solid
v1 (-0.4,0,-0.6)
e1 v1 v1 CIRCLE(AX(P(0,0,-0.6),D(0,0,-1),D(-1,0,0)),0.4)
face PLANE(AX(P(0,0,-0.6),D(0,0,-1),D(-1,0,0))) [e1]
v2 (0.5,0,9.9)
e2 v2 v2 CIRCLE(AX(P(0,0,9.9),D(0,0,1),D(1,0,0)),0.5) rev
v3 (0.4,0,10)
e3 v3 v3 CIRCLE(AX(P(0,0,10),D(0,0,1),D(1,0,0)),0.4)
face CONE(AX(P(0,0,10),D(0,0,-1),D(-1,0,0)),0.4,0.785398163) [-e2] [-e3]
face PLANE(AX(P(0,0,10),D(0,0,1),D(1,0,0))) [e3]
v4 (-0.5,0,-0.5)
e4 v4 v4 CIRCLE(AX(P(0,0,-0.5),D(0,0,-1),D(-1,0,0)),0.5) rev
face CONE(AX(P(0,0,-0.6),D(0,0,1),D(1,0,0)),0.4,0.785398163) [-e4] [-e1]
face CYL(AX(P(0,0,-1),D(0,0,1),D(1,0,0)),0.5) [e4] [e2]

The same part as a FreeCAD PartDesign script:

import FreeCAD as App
import Part
import Sketcher


def edges_at(feature, points):
    """Names of the edges that pass closest to the given points."""
    edges = feature.Shape.Edges
    near = lambda p: min(range(len(edges)), key=lambda i: edges[i].distToShape(Part.Vertex(*p))[0])
    return sorted({f"Edge{near(p) + 1}" for p in points})

doc = App.newDocument("Part")
params = doc.addObject("Spreadsheet::Sheet", "Params")
for row, (alias, value) in enumerate([
    ("sketch1_diameter", "1 mm"),
    ("pad1_length", "10 mm"),
    ("pad1_length2", "1 mm"),
    ("chamfer_size", "0.1 mm"),
    ("sketch2_diameter", "1 mm"),
    ("pocket1_length", "0.4 mm"),
    ("chamfer2_size", "0.1 mm"),
], start=1):
    params.set(f"A{row}", alias)
    params.set(f"B{row}", "=" + value)
    params.setAlias(f"B{row}", alias)

body = doc.addObject("PartDesign::Body", "Body")

# Sketch on XY plane
sketch1 = doc.addObject("Sketcher::SketchObject", "Sketch")
body.addObject(sketch1)
sketch1.AttachmentSupport = (doc.XY_Plane, [""])
sketch1.MapMode = "FlatFace"
sketch1.addGeometry(Part.Circle(App.Vector(0, 0, 0), App.Vector(0, 0, 1), 0.5), False)
sketch1.addConstraint([
    Sketcher.Constraint("Coincident", 0, 3, -1, 1),
    Sketcher.Constraint("Diameter", 0, 1.0),
])
sketch1.setExpression("Constraints[1]", "Params.sketch1_diameter")
pad1 = doc.addObject("PartDesign::Pad", "Pad")
body.addObject(pad1)
pad1.Profile = sketch1
pad1.Type = "TwoLengths"
pad1.setExpression("Length", "Params.pad1_length")
pad1.setExpression("Length2", "Params.pad1_length2")
doc.recompute()

chamfer = doc.addObject("PartDesign::Chamfer", "Chamfer")
body.addObject(chamfer)
chamfer.Base = (pad1, edges_at(pad1, [(-0.5, 0, -1), (-0.5, 0, 10)]))
chamfer.setExpression("Size", "Params.chamfer_size")

# Sketch on XY plane
sketch2 = doc.addObject("Sketcher::SketchObject", "Sketch001")
body.addObject(sketch2)
sketch2.AttachmentSupport = (doc.XY_Plane, [""])
sketch2.MapMode = "FlatFace"
sketch2.AttachmentOffset = App.Placement(App.Vector(0, 0, -1), App.Rotation())
sketch2.addGeometry(Part.Circle(App.Vector(0, 0, 0), App.Vector(0, 0, 1), 0.5), False)
sketch2.addConstraint([
    Sketcher.Constraint("Coincident", 0, 3, -1, 1),
    Sketcher.Constraint("Diameter", 0, 1.0),
])
sketch2.setExpression("Constraints[1]", "Params.sketch2_diameter")
pocket1 = doc.addObject("PartDesign::Pocket", "Pocket")
body.addObject(pocket1)
pocket1.Profile = sketch2
pocket1.setExpression("Length", "Params.pocket1_length")
pocket1.Reversed = True
doc.recompute()

chamfer2 = doc.addObject("PartDesign::Chamfer", "Chamfer001")
body.addObject(chamfer2)
chamfer2.Base = (pocket1, edges_at(pocket1, [(-0.5, 0, -0.6)]))
chamfer2.setExpression("Size", "Params.chamfer2_size")

doc.recompute()
